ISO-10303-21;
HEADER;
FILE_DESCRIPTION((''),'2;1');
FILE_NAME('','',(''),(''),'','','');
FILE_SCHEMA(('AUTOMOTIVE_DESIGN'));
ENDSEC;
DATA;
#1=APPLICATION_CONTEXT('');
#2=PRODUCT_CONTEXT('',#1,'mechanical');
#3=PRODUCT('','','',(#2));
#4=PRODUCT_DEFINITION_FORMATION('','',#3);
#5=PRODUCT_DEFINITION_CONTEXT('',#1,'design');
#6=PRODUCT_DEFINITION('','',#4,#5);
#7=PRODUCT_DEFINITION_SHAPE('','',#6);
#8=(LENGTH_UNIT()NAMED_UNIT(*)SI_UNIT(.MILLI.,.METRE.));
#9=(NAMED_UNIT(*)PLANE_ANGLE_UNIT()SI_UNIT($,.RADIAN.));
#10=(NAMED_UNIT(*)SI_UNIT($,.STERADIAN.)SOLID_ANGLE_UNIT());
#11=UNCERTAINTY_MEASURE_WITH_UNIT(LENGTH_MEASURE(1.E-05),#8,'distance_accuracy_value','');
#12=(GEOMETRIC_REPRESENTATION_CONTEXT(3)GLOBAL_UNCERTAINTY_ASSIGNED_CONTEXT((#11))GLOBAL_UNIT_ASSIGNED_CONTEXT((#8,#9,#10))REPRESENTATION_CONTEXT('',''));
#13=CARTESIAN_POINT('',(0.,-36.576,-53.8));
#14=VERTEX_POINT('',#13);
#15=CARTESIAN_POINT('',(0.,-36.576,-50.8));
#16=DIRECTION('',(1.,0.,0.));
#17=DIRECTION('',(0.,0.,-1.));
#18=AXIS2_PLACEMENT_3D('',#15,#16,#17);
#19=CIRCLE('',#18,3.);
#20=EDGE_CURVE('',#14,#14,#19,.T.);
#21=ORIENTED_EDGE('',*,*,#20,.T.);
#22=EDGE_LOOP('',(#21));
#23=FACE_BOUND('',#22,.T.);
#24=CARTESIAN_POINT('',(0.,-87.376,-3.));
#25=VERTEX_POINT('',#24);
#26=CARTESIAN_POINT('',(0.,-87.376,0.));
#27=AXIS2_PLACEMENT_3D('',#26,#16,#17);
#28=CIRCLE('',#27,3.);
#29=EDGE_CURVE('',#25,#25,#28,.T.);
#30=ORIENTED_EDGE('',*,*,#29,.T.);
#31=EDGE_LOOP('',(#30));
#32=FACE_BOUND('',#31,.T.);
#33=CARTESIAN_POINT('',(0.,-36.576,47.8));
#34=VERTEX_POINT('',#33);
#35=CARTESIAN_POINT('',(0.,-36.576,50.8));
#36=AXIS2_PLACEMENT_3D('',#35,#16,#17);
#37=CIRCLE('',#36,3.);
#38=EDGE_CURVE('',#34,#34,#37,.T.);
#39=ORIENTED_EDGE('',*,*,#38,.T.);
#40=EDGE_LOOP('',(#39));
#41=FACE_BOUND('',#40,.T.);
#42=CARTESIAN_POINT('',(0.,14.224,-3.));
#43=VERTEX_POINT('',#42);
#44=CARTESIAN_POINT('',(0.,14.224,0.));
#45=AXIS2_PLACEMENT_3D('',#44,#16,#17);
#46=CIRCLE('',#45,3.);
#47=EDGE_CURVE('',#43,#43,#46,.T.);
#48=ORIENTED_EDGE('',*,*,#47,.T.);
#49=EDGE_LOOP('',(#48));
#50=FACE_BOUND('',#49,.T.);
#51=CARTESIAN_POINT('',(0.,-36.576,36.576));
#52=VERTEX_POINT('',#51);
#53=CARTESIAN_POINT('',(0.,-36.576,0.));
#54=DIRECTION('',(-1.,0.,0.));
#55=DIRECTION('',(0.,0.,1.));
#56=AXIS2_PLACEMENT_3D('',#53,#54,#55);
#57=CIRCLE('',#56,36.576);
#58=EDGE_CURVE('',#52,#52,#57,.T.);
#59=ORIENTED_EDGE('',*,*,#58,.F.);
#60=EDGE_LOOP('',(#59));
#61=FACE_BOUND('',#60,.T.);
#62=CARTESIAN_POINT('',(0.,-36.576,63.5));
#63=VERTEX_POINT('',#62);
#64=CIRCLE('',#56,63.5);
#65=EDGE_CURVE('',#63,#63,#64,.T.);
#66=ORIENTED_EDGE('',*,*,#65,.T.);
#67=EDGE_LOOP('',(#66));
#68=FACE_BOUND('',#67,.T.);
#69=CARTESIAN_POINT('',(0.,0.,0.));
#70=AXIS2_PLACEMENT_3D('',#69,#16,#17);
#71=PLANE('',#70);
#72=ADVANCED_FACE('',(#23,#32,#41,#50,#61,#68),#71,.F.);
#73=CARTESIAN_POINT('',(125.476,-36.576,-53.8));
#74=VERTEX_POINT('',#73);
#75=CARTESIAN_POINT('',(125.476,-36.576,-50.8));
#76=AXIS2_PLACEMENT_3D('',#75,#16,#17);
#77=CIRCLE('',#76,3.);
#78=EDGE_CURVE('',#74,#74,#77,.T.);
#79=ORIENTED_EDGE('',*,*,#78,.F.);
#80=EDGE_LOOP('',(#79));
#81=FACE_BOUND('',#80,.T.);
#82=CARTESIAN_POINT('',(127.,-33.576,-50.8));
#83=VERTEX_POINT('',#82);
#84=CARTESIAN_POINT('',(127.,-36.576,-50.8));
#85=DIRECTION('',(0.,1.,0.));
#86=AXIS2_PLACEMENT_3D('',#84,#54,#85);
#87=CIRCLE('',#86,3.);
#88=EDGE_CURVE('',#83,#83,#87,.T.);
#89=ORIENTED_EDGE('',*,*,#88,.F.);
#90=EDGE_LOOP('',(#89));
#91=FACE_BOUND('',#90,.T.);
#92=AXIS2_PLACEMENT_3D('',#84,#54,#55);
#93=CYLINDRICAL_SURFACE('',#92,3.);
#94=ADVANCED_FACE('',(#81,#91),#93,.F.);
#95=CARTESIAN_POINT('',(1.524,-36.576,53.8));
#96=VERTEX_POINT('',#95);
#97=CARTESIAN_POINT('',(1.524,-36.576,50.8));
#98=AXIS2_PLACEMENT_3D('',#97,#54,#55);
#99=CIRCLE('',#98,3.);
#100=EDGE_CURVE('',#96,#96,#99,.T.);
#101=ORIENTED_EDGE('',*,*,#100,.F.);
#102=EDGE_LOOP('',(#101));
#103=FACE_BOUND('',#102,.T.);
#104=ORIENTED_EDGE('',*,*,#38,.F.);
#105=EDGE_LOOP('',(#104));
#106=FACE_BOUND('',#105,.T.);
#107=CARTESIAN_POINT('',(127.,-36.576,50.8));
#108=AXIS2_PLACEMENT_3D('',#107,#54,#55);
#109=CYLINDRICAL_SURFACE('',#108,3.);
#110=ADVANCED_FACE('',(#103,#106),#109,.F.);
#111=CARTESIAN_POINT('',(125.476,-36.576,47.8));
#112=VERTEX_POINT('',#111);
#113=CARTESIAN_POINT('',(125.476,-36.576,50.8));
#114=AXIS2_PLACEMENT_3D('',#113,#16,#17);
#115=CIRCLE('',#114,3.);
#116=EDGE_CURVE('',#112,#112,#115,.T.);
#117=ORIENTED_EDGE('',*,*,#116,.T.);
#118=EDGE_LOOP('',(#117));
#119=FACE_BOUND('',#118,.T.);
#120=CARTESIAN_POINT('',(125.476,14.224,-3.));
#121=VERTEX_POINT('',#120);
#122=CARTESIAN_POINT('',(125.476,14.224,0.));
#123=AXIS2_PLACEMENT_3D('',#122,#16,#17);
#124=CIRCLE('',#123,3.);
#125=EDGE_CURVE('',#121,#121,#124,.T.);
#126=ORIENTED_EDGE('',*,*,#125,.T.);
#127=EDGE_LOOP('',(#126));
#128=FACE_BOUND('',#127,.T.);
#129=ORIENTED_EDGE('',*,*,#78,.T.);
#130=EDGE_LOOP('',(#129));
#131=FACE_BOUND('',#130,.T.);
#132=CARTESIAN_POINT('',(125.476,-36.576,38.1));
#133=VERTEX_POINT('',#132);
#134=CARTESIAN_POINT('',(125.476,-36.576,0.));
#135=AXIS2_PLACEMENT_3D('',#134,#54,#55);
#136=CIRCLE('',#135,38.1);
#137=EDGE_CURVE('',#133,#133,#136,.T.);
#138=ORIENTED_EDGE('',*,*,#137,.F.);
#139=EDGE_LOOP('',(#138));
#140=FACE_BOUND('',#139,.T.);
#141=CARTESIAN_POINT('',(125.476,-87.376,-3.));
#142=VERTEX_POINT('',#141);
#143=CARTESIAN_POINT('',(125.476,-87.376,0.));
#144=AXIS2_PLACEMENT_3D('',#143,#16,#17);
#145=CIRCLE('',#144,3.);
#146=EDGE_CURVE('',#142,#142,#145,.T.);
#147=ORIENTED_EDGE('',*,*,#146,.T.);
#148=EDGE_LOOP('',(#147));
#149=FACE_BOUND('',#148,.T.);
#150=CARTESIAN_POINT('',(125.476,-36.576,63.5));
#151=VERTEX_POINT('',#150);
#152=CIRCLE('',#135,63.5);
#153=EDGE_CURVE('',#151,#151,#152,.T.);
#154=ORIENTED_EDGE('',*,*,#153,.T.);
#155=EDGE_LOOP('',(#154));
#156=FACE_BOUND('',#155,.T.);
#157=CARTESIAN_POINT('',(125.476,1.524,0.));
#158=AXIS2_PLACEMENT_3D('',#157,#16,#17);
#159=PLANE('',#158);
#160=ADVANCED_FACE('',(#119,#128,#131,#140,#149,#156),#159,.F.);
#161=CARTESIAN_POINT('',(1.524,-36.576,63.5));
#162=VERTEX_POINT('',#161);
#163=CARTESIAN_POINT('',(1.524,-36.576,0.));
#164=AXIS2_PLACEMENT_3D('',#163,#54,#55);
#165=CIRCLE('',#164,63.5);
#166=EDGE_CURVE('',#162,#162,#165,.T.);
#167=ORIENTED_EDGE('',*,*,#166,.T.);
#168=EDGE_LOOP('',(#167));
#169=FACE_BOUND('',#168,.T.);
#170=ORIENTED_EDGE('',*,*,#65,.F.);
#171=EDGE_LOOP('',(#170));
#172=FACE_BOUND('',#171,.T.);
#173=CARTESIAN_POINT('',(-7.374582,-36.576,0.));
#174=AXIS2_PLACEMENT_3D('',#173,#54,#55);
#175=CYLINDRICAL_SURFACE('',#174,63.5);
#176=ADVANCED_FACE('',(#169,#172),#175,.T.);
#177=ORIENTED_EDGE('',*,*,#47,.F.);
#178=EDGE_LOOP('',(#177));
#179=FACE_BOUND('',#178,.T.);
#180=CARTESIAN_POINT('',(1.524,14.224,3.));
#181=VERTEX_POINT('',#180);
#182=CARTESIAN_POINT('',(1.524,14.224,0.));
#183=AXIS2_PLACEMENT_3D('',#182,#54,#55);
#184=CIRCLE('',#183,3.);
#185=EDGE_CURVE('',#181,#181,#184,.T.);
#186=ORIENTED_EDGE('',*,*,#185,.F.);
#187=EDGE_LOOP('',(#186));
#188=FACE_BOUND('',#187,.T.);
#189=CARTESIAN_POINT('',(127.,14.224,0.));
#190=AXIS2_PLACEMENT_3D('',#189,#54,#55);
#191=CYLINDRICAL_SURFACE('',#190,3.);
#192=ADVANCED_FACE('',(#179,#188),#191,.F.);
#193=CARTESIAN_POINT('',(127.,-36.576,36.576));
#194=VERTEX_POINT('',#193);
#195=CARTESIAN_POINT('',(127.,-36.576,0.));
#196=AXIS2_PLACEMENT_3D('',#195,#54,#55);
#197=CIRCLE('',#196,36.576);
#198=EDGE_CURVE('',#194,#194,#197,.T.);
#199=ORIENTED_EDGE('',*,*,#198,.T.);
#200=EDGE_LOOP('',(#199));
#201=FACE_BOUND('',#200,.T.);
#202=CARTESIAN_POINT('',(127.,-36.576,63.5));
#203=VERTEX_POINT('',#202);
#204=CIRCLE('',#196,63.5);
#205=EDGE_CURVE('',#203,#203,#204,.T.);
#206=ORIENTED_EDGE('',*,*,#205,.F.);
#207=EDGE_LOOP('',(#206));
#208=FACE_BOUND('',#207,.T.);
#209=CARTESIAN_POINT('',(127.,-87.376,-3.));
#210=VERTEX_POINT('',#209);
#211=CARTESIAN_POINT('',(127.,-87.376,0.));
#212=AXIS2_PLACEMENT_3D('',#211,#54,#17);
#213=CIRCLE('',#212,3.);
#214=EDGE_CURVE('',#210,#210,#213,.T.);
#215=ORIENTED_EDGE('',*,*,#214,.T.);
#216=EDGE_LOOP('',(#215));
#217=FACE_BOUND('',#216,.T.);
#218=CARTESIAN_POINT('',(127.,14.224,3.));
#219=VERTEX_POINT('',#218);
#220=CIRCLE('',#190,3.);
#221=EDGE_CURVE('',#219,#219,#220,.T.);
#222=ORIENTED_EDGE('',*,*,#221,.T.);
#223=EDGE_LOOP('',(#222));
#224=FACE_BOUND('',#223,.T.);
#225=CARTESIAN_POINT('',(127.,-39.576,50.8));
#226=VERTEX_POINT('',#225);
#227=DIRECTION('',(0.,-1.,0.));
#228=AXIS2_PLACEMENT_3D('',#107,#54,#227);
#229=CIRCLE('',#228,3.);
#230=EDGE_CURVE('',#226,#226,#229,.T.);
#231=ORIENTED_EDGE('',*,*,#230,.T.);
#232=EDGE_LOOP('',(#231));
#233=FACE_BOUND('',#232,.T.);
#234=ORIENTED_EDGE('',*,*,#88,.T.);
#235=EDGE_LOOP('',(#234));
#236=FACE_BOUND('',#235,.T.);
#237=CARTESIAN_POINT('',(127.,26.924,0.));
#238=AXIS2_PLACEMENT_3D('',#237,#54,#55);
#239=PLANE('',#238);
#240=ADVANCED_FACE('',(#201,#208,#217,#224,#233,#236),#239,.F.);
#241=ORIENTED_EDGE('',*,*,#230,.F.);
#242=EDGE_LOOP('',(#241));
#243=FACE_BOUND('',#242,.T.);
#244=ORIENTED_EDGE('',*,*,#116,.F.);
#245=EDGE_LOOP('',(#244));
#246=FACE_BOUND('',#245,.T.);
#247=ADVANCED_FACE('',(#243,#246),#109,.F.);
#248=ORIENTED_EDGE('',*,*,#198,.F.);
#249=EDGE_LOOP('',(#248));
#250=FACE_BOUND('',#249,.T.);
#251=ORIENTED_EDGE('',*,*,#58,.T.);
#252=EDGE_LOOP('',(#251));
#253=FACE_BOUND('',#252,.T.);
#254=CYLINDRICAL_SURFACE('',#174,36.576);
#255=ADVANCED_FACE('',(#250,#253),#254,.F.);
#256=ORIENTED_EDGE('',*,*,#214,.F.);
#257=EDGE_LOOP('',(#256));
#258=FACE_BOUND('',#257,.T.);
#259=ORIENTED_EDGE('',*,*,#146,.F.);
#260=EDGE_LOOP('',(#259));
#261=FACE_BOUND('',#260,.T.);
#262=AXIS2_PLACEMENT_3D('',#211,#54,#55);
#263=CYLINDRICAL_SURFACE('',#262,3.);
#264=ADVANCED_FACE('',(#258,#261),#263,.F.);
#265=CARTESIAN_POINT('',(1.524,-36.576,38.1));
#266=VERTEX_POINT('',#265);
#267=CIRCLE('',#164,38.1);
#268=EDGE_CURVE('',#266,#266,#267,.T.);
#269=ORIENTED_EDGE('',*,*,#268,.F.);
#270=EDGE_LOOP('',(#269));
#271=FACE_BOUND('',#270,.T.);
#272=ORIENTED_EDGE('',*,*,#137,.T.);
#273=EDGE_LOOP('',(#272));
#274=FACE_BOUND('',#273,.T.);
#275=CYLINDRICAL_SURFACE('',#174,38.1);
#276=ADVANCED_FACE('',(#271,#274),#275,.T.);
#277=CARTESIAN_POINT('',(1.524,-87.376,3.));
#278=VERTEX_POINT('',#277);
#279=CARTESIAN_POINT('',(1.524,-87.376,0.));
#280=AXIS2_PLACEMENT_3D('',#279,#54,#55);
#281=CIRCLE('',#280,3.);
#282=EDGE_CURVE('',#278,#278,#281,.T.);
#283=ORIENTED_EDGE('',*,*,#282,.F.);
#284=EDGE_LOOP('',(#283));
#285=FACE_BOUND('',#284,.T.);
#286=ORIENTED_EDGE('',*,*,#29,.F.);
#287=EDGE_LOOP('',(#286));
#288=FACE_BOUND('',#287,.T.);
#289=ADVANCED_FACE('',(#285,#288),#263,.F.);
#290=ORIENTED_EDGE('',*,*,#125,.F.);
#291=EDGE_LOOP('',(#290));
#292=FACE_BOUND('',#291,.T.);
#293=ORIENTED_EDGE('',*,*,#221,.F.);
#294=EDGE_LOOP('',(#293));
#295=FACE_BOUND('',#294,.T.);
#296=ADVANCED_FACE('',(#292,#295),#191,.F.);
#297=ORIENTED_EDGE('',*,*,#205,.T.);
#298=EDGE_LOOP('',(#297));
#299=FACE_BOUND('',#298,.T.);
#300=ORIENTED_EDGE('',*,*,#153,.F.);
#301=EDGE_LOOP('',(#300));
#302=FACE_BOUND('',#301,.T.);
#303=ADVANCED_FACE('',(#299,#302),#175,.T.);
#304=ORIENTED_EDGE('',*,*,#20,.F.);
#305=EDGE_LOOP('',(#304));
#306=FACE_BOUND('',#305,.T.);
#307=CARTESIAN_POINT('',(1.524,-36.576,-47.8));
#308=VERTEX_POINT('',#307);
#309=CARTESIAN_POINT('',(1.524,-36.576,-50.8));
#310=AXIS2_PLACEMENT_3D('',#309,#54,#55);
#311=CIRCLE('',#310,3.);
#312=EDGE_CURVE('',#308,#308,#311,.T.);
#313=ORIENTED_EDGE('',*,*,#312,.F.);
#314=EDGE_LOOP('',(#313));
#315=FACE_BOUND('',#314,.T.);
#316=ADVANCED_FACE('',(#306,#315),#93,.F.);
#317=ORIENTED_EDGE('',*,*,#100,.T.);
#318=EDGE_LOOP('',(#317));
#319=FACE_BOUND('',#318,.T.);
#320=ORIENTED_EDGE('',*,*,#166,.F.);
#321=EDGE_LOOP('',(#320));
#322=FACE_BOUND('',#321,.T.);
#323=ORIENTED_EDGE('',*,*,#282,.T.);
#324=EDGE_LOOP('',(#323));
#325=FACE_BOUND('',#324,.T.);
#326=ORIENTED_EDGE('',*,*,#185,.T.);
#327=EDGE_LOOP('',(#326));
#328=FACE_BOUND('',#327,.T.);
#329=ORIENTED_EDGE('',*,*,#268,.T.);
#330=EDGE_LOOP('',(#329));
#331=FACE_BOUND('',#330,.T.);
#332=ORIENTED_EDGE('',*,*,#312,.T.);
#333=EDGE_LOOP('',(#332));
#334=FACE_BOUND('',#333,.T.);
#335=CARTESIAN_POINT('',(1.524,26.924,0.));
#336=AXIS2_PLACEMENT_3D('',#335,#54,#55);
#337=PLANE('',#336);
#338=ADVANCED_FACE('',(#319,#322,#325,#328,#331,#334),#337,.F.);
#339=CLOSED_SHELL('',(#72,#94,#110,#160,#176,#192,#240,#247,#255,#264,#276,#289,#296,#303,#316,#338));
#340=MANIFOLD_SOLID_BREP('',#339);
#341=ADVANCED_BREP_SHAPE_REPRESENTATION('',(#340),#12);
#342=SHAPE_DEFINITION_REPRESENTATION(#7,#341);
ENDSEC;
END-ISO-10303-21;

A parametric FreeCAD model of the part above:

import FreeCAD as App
import Part
import Sketcher
from FreeCAD import Vector
Q = App.Units.Quantity


def add_polygon(sketch, points):
    """Adds a closed chain of lines whose ends are joined by coincident constraints."""
    first, n = sketch.GeometryCount, len(points)
    for a, b in zip(points, points[1:] + points[:1]):
        sketch.addGeometry(Part.LineSegment(App.Vector(*a, 0), App.Vector(*b, 0)), False)
    for i in range(n):
        sketch.addConstraint(Sketcher.Constraint("Coincident", first + i, 2, first + (i + 1) % n, 1))

doc = App.newDocument("Part")
body = doc.addObject("PartDesign::Body", "Body")

# Sketch on XY plane
sketch1 = body.newObject("Sketcher::SketchObject", "Sketch")
sketch1.AttachmentSupport = (doc.getObject("XY_Plane"), [""])
sketch1.MapMode = "FlatFace"
add_polygon(sketch1, [(0, 26.924), (0, 0), (127, 0), (127, 26.924), (125.476, 26.924), (125.476, 1.524), (1.524, 1.524), (1.524, 26.924)])  # lines 0-7
sketch1.addGeometry(Part.LineSegment(Vector(0, -36.576, 0), Vector(127, -36.576, 0)), True)  # axis
sketch1.addConstraint([
    Sketcher.Constraint("Vertical", 0),
    Sketcher.Constraint("Horizontal", 1),
    Sketcher.Constraint("Vertical", 2),
    Sketcher.Constraint("Horizontal", 3),
    Sketcher.Constraint("Vertical", 4),
    Sketcher.Constraint("Horizontal", 5),
    Sketcher.Constraint("Vertical", 6),
    Sketcher.Constraint("Horizontal", 7),
    Sketcher.Constraint("Horizontal", 8),
    Sketcher.Constraint("Coincident", 0, 2, -1, 1),
    Sketcher.Constraint("PointOnObject", 8, 1, -2),
    Sketcher.Constraint("Horizontal", 3, 2, 6, 2),
    Sketcher.Constraint("Vertical", 2, 2, 8, 2),
    Sketcher.Constraint("Equal", 3, 7),
    Sketcher.Constraint("DistanceX", 1, 1, 1, 2, Q("5 in")),
    Sketcher.Constraint("DistanceY", 4, 2, 4, 1, Q("1 in")),
    Sketcher.Constraint("DistanceX", 3, 2, 3, 1, Q("0.06 in")),
    Sketcher.Constraint("DistanceY", 0, 2, 0, 1, Q("1.06 in")),
    Sketcher.Constraint("DistanceY", 8, 1, 5, 2, Q("1.5 in")),
])
revolution = body.newObject("PartDesign::Revolution", "Revolution")
revolution.Profile = sketch1
revolution.ReferenceAxis = (sketch1, ["Axis0"])
revolution.Angle = 360

# Sketch on YZ plane
sketch2 = body.newObject("Sketcher::SketchObject", "Sketch001")
sketch2.AttachmentSupport = (doc.getObject("YZ_Plane"), [""])
sketch2.MapMode = "FlatFace"
sketch2.addGeometry(Part.Circle(Vector(14.224, 0, 0), Vector(0, 0, 1), 3), False)
sketch2.addConstraint([
    Sketcher.Constraint("PointOnObject", 0, 3, -1),
    Sketcher.Constraint("Diameter", 0, Q("6 mm")),
    Sketcher.Constraint("DistanceX", -1, 1, 0, 3, Q("0.56 in")),
])
pocket1 = body.newObject("PartDesign::Pocket", "Pocket")
pocket1.Profile = sketch2
pocket1.Length = 349.427436
pocket1.Midplane = True
doc.recompute()

datumline = body.newObject("PartDesign::Line", "DatumLine")
datumline.Placement = App.Placement(Vector(0, -36.576, 0), App.Rotation(Vector(0, 0, 1), Vector(1, 0, 0)))
polarpattern = body.newObject("PartDesign::PolarPattern", "PolarPattern")
polarpattern.Originals = [pocket1]
polarpattern.Axis = (datumline, [""])
polarpattern.Angle = 360
polarpattern.Occurrences = 4
body.Tip = polarpattern

doc.recompute()
